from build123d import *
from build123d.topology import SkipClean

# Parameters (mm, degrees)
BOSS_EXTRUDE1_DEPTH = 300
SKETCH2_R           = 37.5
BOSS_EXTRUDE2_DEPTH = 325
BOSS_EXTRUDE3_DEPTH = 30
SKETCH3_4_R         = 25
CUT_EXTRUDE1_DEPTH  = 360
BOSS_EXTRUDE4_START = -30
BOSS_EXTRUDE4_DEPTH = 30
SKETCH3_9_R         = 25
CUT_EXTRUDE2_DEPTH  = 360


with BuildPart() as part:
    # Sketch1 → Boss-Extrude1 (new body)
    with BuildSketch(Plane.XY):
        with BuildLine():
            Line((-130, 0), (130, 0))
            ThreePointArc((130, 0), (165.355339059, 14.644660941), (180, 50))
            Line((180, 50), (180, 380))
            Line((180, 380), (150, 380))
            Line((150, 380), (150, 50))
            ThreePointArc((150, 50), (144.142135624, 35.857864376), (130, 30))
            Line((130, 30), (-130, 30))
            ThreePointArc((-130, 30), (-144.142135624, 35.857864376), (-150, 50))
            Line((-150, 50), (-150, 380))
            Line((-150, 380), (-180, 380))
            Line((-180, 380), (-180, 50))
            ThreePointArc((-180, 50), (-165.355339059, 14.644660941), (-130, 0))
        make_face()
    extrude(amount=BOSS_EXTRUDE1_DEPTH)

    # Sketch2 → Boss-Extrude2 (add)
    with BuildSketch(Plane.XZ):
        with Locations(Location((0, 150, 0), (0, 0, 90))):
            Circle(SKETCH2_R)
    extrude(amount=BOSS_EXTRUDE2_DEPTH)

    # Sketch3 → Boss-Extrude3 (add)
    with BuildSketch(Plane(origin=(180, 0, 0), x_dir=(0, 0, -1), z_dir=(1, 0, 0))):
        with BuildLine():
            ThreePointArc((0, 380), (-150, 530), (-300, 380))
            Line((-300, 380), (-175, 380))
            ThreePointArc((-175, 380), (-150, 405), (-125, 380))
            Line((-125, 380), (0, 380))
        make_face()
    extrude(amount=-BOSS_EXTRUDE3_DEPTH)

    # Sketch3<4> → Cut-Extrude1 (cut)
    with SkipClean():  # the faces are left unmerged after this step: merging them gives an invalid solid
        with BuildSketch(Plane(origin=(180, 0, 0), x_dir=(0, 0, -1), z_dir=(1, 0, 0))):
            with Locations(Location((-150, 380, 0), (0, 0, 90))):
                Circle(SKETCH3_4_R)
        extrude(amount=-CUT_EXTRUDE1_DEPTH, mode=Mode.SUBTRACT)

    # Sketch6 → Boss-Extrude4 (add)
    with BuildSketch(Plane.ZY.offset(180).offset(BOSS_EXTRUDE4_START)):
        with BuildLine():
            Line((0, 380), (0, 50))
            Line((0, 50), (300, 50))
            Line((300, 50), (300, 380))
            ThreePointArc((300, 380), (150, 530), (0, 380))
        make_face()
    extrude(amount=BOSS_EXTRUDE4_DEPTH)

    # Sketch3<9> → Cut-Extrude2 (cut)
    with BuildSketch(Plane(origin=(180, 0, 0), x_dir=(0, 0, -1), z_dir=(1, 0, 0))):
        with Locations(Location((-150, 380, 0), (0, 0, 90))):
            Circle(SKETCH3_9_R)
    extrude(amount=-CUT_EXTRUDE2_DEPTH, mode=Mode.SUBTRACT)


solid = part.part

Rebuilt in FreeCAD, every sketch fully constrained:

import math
import FreeCAD as App
import Part
import Sketcher
from FreeCAD import Vector

doc = App.newDocument("Part")
body = doc.addObject("PartDesign::Body", "Body")

sketch1 = body.newObject("Sketcher::SketchObject", "Sketch")
sketch1.AttachmentSupport = (doc.getObject("XY_Plane"), [""])
sketch1.MapMode = "FlatFace"
sketch1.addGeometry(Part.LineSegment(Vector(-130, 0, 0), Vector(130, 0, 0)), False)
sketch1.addGeometry(Part.ArcOfCircle(Part.Circle(Vector(130, 50, 0), Vector(0, 0, 1), 50), math.radians(-90), math.radians(0)), False)
sketch1.addGeometry(Part.LineSegment(Vector(180, 50, 0), Vector(180, 380, 0)), False)
sketch1.addGeometry(Part.LineSegment(Vector(180, 380, 0), Vector(150, 380, 0)), False)
sketch1.addGeometry(Part.LineSegment(Vector(150, 380, 0), Vector(150, 50, 0)), False)
sketch1.addGeometry(Part.ArcOfCircle(Part.Circle(Vector(130, 50, 0), Vector(0, 0, 1), 20), math.radians(-90), math.radians(0)), False)
sketch1.addGeometry(Part.LineSegment(Vector(130, 30, 0), Vector(-130, 30, 0)), False)
sketch1.addGeometry(Part.ArcOfCircle(Part.Circle(Vector(-130, 50, 0), Vector(0, 0, 1), 20), math.radians(180), math.radians(270)), False)
sketch1.addGeometry(Part.LineSegment(Vector(-150, 50, 0), Vector(-150, 380, 0)), False)
sketch1.addGeometry(Part.LineSegment(Vector(-150, 380, 0), Vector(-180, 380, 0)), False)
sketch1.addGeometry(Part.LineSegment(Vector(-180, 380, 0), Vector(-180, 50, 0)), False)
sketch1.addGeometry(Part.ArcOfCircle(Part.Circle(Vector(-130, 50, 0), Vector(0, 0, 1), 50), math.radians(-180), math.radians(-90)), False)
sketch1.addConstraint(Sketcher.Constraint("Tangent", 0, 2, 1, 1))
sketch1.addConstraint(Sketcher.Constraint("Tangent", 1, 2, 2, 1))
sketch1.addConstraint(Sketcher.Constraint("Coincident", 2, 2, 3, 1))
sketch1.addConstraint(Sketcher.Constraint("Coincident", 3, 2, 4, 1))
sketch1.addConstraint(Sketcher.Constraint("Tangent", 4, 2, 5, 2))
sketch1.addConstraint(Sketcher.Constraint("Tangent", 5, 1, 6, 1))
sketch1.addConstraint(Sketcher.Constraint("Tangent", 6, 2, 7, 2))
sketch1.addConstraint(Sketcher.Constraint("Tangent", 7, 1, 8, 1))
sketch1.addConstraint(Sketcher.Constraint("Coincident", 8, 2, 9, 1))
sketch1.addConstraint(Sketcher.Constraint("Coincident", 9, 2, 10, 1))
sketch1.addConstraint(Sketcher.Constraint("Tangent", 10, 2, 11, 1))
sketch1.addConstraint(Sketcher.Constraint("Tangent", 11, 2, 0, 1))
sketch1.addConstraint(Sketcher.Constraint("Horizontal", 0))
sketch1.addConstraint(Sketcher.Constraint("Vertical", 2))
sketch1.addConstraint(Sketcher.Constraint("Horizontal", 3))
sketch1.addConstraint(Sketcher.Constraint("Vertical", 4))
sketch1.addConstraint(Sketcher.Constraint("Horizontal", 6))
sketch1.addConstraint(Sketcher.Constraint("Vertical", 8))
sketch1.addConstraint(Sketcher.Constraint("Horizontal", 9))
sketch1.addConstraint(Sketcher.Constraint("Vertical", 10))
sketch1.addConstraint(Sketcher.Constraint("Coincident", 5, 3, 1, 3))
sketch1.addConstraint(Sketcher.Constraint("Coincident", 11, 3, 7, 3))
sketch1.addConstraint(Sketcher.Constraint("Equal", 5, 7))
sketch1.addConstraint(Sketcher.Constraint("Symmetric", 0, 2, 11, 2, -1, 1))
sketch1.addConstraint(Sketcher.Constraint("Horizontal", 3, 2, 8, 2))
sketch1.addConstraint(Sketcher.Constraint("Radius", 1, 50.0))
sketch1.addConstraint(Sketcher.Constraint("Radius", 5, 20.0))
sketch1.addConstraint(Sketcher.Constraint("DistanceX", 0, 1, 0, 2, 260.0))
sketch1.addConstraint(Sketcher.Constraint("DistanceY", 2, 1, 2, 2, 330.0))
pad1 = body.newObject("PartDesign::Pad", "Pad")
pad1.Profile = sketch1
pad1.Length = 300

sketch2 = body.newObject("Sketcher::SketchObject", "Sketch001")
sketch2.AttachmentSupport = (doc.getObject("XZ_Plane"), [""])
sketch2.MapMode = "FlatFace"
sketch2.addGeometry(Part.Circle(Vector(0, 150, 0), Vector(0, 0, 1), 38), False)
sketch2.addConstraint(Sketcher.Constraint("PointOnObject", 0, 3, -2))
sketch2.addConstraint(Sketcher.Constraint("Diameter", 0, 75.0))
sketch2.addConstraint(Sketcher.Constraint("DistanceY", -1, 1, 0, 3, 150.0))
pad2 = body.newObject("PartDesign::Pad", "Pad001")
pad2.Profile = sketch2
pad2.Length = 325

sketch3 = body.newObject("Sketcher::SketchObject", "Sketch002")
sketch3.AttachmentSupport = (doc.getObject("YZ_Plane"), [""])
sketch3.MapMode = "FlatFace"
sketch3.AttachmentOffset = App.Placement(Vector(0, 0, 180), App.Rotation())
sketch3.addGeometry(Part.ArcOfCircle(Part.Circle(Vector(380, 150, 0), Vector(0, 0, 1), 150), math.radians(-90), math.radians(90)), False)
sketch3.addGeometry(Part.LineSegment(Vector(380, 300, 0), Vector(380, 175, 0)), False)
sketch3.addGeometry(Part.ArcOfCircle(Part.Circle(Vector(380, 150, 0), Vector(0, 0, 1), 25), math.radians(-90), math.radians(90)), False)
sketch3.addGeometry(Part.LineSegment(Vector(380, 125, 0), Vector(380, 0, 0)), False)
sketch3.addConstraint(Sketcher.Constraint("Coincident", 0, 2, 1, 1))
sketch3.addConstraint(Sketcher.Constraint("Coincident", 1, 2, 2, 2))
sketch3.addConstraint(Sketcher.Constraint("Coincident", 2, 1, 3, 1))
sketch3.addConstraint(Sketcher.Constraint("Coincident", 3, 2, 0, 1))
sketch3.addConstraint(Sketcher.Constraint("Vertical", 1))
sketch3.addConstraint(Sketcher.Constraint("Vertical", 3))
sketch3.addConstraint(Sketcher.Constraint("Coincident", 2, 3, 0, 3))
sketch3.addConstraint(Sketcher.Constraint("PointOnObject", 3, 2, -1))
sketch3.addConstraint(Sketcher.Constraint("Vertical", 2, 3, 0, 2))
sketch3.addConstraint(Sketcher.Constraint("Vertical", 1, 2, 2, 1))
sketch3.addConstraint(Sketcher.Constraint("Radius", 0, 150.0))
sketch3.addConstraint(Sketcher.Constraint("Radius", 2, 25.0))
sketch3.addConstraint(Sketcher.Constraint("DistanceX", -1, 1, 0, 3, 380.0))
pad3 = body.newObject("PartDesign::Pad", "Pad002")
pad3.Profile = sketch3
pad3.Length = 30
pad3.Reversed = True

sketch4 = body.newObject("Sketcher::SketchObject", "Sketch003")
sketch4.AttachmentSupport = (doc.getObject("YZ_Plane"), [""])
sketch4.MapMode = "FlatFace"
sketch4.AttachmentOffset = App.Placement(Vector(0, 0, 180), App.Rotation())
sketch4.addGeometry(Part.Circle(Vector(380, 150, 0), Vector(0, 0, 1), 25), False)
sketch4.addConstraint(Sketcher.Constraint("Diameter", 0, 50.0))
sketch4.addConstraint(Sketcher.Constraint("DistanceX", -1, 1, 0, 3, 380.0))
sketch4.addConstraint(Sketcher.Constraint("DistanceY", -1, 1, 0, 3, 150.0))
pocket1 = body.newObject("PartDesign::Pocket", "Pocket")
pocket1.Profile = sketch4
pocket1.Length = 360

sketch5 = body.newObject("Sketcher::SketchObject", "Sketch004")
sketch5.AttachmentSupport = (doc.getObject("YZ_Plane"), [""])
sketch5.MapMode = "FlatFace"
sketch5.AttachmentOffset = App.Placement(Vector(0, 0, -150), App.Rotation())
sketch5.addGeometry(Part.LineSegment(Vector(380, 0, 0), Vector(50, 0, 0)), False)
sketch5.addGeometry(Part.LineSegment(Vector(50, 0, 0), Vector(50, 300, 0)), False)
sketch5.addGeometry(Part.LineSegment(Vector(50, 300, 0), Vector(380, 300, 0)), False)
sketch5.addGeometry(Part.ArcOfCircle(Part.Circle(Vector(380, 150, 0), Vector(0, 0, 1), 150), math.radians(-90), math.radians(90)), False)
sketch5.addConstraint(Sketcher.Constraint("Coincident", 0, 2, 1, 1))
sketch5.addConstraint(Sketcher.Constraint("Coincident", 1, 2, 2, 1))
sketch5.addConstraint(Sketcher.Constraint("Tangent", 2, 2, 3, 2))
sketch5.addConstraint(Sketcher.Constraint("Tangent", 3, 1, 0, 1))
sketch5.addConstraint(Sketcher.Constraint("Horizontal", 0))
sketch5.addConstraint(Sketcher.Constraint("Vertical", 1))
sketch5.addConstraint(Sketcher.Constraint("Horizontal", 2))
sketch5.addConstraint(Sketcher.Constraint("PointOnObject", 0, 2, -1))
sketch5.addConstraint(Sketcher.Constraint("Radius", 3, 150.0))
sketch5.addConstraint(Sketcher.Constraint("DistanceX", 0, 2, 0, 1, 330.0))
sketch5.addConstraint(Sketcher.Constraint("DistanceX", -1, 1, 3, 3, 380.0))
pad4 = body.newObject("PartDesign::Pad", "Pad003")
pad4.Profile = sketch5
pad4.Length = 30
pad4.Reversed = True

sketch6 = body.newObject("Sketcher::SketchObject", "Sketch005")
sketch6.AttachmentSupport = (doc.getObject("YZ_Plane"), [""])
sketch6.MapMode = "FlatFace"
sketch6.AttachmentOffset = App.Placement(Vector(0, 0, 180), App.Rotation())
sketch6.addGeometry(Part.Circle(Vector(380, 150, 0), Vector(0, 0, 1), 25), False)
sketch6.addConstraint(Sketcher.Constraint("Diameter", 0, 50.0))
sketch6.addConstraint(Sketcher.Constraint("DistanceX", -1, 1, 0, 3, 380.0))
sketch6.addConstraint(Sketcher.Constraint("DistanceY", -1, 1, 0, 3, 150.0))
pocket2 = body.newObject("PartDesign::Pocket", "Pocket001")
pocket2.Profile = sketch6
pocket2.Length = 360

doc.recompute()
